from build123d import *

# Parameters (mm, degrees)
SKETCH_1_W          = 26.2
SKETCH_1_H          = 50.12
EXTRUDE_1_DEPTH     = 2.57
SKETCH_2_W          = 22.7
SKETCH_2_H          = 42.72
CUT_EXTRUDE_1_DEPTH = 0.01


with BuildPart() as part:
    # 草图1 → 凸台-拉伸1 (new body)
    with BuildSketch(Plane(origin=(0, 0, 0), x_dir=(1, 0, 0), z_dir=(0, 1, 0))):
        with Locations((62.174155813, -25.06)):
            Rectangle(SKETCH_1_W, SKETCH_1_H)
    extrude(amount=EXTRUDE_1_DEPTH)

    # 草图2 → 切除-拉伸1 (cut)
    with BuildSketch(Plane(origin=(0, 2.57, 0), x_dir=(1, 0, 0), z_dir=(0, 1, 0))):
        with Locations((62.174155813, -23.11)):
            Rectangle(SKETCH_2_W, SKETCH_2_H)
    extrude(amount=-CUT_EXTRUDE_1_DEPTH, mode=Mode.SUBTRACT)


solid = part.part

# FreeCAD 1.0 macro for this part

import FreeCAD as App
import Part
import Sketcher
from FreeCAD import Vector
Q = App.Units.Quantity


def add_polygon(sketch, points):
    """Adds a closed chain of lines whose ends are joined by coincident constraints."""
    first, n = sketch.GeometryCount, len(points)
    for a, b in zip(points, points[1:] + points[:1]):
        sketch.addGeometry(Part.LineSegment(App.Vector(*a, 0), App.Vector(*b, 0)), False)
    for i in range(n):
        sketch.addConstraint(Sketcher.Constraint("Coincident", first + i, 2, first + (i + 1) % n, 1))

doc = App.newDocument("Part")
body = doc.addObject("PartDesign::Body", "Body")

# Sketch on XZ plane
sketch1 = body.newObject("Sketcher::SketchObject", "Sketch")
sketch1.AttachmentSupport = (doc.getObject("XZ_Plane"), [""])
sketch1.MapMode = "FlatFace"
add_polygon(sketch1, [(49, 0), (49, 50), (75, 50), (75, 0)])  # lines 0-3
sketch1.addConstraint([
    Sketcher.Constraint("Vertical", 0),
    Sketcher.Constraint("Horizontal", 1),
    Sketcher.Constraint("Vertical", 2),
    Sketcher.Constraint("Horizontal", 3),
    Sketcher.Constraint("PointOnObject", 2, 2, -1),
    Sketcher.Constraint("DistanceX", 1, 1, 1, 2, Q("26.2 mm")),
    Sketcher.Constraint("DistanceY", 0, 1, 0, 2, Q("50.12 mm")),
    Sketcher.Constraint("DistanceX", -1, 1, 0, 2, Q("49.074156 mm")),
])
pad1 = body.newObject("PartDesign::Pad", "Pad")
pad1.Profile = sketch1
pad1.Length = 2.57
pad1.Reversed = True

# Sketch on XZ plane
sketch2 = body.newObject("Sketcher::SketchObject", "Sketch001")
sketch2.AttachmentSupport = (doc.getObject("XZ_Plane"), [""])
sketch2.MapMode = "FlatFace"
sketch2.AttachmentOffset = App.Placement(Vector(0, 0, -2.57), App.Rotation())
add_polygon(sketch2, [(51, 2), (51, 44), (74, 44), (74, 2)])  # lines 0-3
sketch2.addConstraint([
    Sketcher.Constraint("Vertical", 0),
    Sketcher.Constraint("Horizontal", 1),
    Sketcher.Constraint("Vertical", 2),
    Sketcher.Constraint("Horizontal", 3),
    Sketcher.Constraint("DistanceX", 1, 1, 1, 2, Q("22.7 mm")),
    Sketcher.Constraint("DistanceY", 0, 1, 0, 2, Q("42.72 mm")),
    Sketcher.Constraint("DistanceY", -1, 1, 0, 2, Q("44.47 mm")),
    Sketcher.Constraint("DistanceX", -1, 1, 0, 2, Q("50.824156 mm")),
])
pocket1 = body.newObject("PartDesign::Pocket", "Pocket")
pocket1.Profile = sketch2
pocket1.Length = 0.01
pocket1.Reversed = True

doc.recompute()
